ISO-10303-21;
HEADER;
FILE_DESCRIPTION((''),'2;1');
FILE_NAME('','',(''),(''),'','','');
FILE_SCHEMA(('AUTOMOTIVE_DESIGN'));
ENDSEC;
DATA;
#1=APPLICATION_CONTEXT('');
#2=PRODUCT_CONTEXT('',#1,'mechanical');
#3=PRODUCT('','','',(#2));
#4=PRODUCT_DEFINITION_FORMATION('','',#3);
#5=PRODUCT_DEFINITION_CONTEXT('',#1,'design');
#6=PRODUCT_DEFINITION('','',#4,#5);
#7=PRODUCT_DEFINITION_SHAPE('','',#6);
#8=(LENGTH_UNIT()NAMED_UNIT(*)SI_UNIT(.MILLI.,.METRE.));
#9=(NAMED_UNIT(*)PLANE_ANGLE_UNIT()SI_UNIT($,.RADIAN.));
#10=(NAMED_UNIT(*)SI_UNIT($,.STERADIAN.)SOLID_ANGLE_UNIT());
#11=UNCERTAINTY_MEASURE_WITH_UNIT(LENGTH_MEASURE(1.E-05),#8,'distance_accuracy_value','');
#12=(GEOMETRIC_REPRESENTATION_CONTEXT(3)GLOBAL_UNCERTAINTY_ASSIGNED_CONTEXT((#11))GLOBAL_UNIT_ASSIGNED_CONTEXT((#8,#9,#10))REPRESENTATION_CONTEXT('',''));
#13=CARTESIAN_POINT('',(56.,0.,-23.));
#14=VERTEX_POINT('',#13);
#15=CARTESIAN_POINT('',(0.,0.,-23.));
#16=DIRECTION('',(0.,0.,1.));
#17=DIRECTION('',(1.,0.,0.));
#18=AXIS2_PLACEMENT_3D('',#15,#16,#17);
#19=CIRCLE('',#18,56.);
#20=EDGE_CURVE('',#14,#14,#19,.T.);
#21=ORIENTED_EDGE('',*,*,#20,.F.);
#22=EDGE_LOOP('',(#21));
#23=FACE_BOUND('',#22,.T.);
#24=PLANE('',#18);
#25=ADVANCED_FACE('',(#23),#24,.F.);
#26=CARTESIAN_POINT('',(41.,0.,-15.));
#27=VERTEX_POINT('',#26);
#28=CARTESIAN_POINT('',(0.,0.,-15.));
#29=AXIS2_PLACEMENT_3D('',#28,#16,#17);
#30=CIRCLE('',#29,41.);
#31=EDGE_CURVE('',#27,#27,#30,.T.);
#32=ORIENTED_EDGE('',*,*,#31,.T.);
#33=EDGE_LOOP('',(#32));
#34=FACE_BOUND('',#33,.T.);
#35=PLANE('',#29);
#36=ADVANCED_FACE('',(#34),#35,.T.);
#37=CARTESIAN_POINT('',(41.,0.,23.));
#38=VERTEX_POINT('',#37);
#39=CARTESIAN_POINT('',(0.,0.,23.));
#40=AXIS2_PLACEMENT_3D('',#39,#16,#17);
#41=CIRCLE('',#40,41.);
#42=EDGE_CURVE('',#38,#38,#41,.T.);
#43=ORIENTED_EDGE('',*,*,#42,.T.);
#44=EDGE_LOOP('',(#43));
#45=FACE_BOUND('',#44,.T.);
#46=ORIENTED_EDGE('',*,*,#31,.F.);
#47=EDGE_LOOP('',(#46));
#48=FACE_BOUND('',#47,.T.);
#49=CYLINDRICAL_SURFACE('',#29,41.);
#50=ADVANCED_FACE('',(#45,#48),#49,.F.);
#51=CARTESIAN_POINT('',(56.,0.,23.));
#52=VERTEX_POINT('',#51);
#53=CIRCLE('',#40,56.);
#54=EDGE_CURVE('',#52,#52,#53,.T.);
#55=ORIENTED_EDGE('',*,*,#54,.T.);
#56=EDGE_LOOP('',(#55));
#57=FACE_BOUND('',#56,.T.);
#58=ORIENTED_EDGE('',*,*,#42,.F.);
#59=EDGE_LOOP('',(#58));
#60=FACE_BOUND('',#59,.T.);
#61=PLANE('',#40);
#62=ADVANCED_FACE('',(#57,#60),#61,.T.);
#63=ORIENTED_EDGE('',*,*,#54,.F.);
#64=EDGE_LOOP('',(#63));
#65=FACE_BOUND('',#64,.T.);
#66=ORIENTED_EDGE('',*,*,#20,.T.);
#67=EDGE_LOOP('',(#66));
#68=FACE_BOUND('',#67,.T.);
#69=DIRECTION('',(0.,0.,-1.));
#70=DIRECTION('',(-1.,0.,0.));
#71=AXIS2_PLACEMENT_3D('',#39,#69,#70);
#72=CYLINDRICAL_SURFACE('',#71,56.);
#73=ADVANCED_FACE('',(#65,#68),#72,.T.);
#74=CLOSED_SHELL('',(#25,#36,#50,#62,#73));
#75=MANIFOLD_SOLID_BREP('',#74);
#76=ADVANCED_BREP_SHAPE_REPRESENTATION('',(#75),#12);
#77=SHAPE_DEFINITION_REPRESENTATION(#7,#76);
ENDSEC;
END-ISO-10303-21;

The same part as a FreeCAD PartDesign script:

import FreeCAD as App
import Part
import Sketcher
from FreeCAD import Vector

doc = App.newDocument("Part")
body = doc.addObject("PartDesign::Body", "Body")

# Sketch on XY plane
sketch1 = doc.addObject("Sketcher::SketchObject", "Sketch")
body.addObject(sketch1)
sketch1.AttachmentSupport = (doc.XY_Plane, [""])
sketch1.MapMode = "FlatFace"
sketch1.addGeometry(Part.Circle(Vector(0, 0, 0), Vector(0, 0, 1), 56), False)
sketch1.addConstraint(Sketcher.Constraint("Coincident", 0, 3, -1, 1))
sketch1.addConstraint(Sketcher.Constraint("Diameter", 0, 112.0))
pad1 = doc.addObject("PartDesign::Pad", "Pad")
body.addObject(pad1)
pad1.Profile = sketch1
pad1.Length = 46
pad1.Midplane = True

# Sketch on XY plane
sketch2 = doc.addObject("Sketcher::SketchObject", "Sketch001")
body.addObject(sketch2)
sketch2.AttachmentSupport = (doc.XY_Plane, [""])
sketch2.MapMode = "FlatFace"
sketch2.AttachmentOffset = App.Placement(Vector(0, 0, 23), App.Rotation())
sketch2.addGeometry(Part.Circle(Vector(0, 0, 0), Vector(0, 0, 1), 41), False)
sketch2.addConstraint(Sketcher.Constraint("Coincident", 0, 3, -1, 1))
sketch2.addConstraint(Sketcher.Constraint("Diameter", 0, 82.0))
pocket1 = doc.addObject("PartDesign::Pocket", "Pocket")
body.addObject(pocket1)
pocket1.Profile = sketch2
pocket1.Length = 38

doc.recompute()
